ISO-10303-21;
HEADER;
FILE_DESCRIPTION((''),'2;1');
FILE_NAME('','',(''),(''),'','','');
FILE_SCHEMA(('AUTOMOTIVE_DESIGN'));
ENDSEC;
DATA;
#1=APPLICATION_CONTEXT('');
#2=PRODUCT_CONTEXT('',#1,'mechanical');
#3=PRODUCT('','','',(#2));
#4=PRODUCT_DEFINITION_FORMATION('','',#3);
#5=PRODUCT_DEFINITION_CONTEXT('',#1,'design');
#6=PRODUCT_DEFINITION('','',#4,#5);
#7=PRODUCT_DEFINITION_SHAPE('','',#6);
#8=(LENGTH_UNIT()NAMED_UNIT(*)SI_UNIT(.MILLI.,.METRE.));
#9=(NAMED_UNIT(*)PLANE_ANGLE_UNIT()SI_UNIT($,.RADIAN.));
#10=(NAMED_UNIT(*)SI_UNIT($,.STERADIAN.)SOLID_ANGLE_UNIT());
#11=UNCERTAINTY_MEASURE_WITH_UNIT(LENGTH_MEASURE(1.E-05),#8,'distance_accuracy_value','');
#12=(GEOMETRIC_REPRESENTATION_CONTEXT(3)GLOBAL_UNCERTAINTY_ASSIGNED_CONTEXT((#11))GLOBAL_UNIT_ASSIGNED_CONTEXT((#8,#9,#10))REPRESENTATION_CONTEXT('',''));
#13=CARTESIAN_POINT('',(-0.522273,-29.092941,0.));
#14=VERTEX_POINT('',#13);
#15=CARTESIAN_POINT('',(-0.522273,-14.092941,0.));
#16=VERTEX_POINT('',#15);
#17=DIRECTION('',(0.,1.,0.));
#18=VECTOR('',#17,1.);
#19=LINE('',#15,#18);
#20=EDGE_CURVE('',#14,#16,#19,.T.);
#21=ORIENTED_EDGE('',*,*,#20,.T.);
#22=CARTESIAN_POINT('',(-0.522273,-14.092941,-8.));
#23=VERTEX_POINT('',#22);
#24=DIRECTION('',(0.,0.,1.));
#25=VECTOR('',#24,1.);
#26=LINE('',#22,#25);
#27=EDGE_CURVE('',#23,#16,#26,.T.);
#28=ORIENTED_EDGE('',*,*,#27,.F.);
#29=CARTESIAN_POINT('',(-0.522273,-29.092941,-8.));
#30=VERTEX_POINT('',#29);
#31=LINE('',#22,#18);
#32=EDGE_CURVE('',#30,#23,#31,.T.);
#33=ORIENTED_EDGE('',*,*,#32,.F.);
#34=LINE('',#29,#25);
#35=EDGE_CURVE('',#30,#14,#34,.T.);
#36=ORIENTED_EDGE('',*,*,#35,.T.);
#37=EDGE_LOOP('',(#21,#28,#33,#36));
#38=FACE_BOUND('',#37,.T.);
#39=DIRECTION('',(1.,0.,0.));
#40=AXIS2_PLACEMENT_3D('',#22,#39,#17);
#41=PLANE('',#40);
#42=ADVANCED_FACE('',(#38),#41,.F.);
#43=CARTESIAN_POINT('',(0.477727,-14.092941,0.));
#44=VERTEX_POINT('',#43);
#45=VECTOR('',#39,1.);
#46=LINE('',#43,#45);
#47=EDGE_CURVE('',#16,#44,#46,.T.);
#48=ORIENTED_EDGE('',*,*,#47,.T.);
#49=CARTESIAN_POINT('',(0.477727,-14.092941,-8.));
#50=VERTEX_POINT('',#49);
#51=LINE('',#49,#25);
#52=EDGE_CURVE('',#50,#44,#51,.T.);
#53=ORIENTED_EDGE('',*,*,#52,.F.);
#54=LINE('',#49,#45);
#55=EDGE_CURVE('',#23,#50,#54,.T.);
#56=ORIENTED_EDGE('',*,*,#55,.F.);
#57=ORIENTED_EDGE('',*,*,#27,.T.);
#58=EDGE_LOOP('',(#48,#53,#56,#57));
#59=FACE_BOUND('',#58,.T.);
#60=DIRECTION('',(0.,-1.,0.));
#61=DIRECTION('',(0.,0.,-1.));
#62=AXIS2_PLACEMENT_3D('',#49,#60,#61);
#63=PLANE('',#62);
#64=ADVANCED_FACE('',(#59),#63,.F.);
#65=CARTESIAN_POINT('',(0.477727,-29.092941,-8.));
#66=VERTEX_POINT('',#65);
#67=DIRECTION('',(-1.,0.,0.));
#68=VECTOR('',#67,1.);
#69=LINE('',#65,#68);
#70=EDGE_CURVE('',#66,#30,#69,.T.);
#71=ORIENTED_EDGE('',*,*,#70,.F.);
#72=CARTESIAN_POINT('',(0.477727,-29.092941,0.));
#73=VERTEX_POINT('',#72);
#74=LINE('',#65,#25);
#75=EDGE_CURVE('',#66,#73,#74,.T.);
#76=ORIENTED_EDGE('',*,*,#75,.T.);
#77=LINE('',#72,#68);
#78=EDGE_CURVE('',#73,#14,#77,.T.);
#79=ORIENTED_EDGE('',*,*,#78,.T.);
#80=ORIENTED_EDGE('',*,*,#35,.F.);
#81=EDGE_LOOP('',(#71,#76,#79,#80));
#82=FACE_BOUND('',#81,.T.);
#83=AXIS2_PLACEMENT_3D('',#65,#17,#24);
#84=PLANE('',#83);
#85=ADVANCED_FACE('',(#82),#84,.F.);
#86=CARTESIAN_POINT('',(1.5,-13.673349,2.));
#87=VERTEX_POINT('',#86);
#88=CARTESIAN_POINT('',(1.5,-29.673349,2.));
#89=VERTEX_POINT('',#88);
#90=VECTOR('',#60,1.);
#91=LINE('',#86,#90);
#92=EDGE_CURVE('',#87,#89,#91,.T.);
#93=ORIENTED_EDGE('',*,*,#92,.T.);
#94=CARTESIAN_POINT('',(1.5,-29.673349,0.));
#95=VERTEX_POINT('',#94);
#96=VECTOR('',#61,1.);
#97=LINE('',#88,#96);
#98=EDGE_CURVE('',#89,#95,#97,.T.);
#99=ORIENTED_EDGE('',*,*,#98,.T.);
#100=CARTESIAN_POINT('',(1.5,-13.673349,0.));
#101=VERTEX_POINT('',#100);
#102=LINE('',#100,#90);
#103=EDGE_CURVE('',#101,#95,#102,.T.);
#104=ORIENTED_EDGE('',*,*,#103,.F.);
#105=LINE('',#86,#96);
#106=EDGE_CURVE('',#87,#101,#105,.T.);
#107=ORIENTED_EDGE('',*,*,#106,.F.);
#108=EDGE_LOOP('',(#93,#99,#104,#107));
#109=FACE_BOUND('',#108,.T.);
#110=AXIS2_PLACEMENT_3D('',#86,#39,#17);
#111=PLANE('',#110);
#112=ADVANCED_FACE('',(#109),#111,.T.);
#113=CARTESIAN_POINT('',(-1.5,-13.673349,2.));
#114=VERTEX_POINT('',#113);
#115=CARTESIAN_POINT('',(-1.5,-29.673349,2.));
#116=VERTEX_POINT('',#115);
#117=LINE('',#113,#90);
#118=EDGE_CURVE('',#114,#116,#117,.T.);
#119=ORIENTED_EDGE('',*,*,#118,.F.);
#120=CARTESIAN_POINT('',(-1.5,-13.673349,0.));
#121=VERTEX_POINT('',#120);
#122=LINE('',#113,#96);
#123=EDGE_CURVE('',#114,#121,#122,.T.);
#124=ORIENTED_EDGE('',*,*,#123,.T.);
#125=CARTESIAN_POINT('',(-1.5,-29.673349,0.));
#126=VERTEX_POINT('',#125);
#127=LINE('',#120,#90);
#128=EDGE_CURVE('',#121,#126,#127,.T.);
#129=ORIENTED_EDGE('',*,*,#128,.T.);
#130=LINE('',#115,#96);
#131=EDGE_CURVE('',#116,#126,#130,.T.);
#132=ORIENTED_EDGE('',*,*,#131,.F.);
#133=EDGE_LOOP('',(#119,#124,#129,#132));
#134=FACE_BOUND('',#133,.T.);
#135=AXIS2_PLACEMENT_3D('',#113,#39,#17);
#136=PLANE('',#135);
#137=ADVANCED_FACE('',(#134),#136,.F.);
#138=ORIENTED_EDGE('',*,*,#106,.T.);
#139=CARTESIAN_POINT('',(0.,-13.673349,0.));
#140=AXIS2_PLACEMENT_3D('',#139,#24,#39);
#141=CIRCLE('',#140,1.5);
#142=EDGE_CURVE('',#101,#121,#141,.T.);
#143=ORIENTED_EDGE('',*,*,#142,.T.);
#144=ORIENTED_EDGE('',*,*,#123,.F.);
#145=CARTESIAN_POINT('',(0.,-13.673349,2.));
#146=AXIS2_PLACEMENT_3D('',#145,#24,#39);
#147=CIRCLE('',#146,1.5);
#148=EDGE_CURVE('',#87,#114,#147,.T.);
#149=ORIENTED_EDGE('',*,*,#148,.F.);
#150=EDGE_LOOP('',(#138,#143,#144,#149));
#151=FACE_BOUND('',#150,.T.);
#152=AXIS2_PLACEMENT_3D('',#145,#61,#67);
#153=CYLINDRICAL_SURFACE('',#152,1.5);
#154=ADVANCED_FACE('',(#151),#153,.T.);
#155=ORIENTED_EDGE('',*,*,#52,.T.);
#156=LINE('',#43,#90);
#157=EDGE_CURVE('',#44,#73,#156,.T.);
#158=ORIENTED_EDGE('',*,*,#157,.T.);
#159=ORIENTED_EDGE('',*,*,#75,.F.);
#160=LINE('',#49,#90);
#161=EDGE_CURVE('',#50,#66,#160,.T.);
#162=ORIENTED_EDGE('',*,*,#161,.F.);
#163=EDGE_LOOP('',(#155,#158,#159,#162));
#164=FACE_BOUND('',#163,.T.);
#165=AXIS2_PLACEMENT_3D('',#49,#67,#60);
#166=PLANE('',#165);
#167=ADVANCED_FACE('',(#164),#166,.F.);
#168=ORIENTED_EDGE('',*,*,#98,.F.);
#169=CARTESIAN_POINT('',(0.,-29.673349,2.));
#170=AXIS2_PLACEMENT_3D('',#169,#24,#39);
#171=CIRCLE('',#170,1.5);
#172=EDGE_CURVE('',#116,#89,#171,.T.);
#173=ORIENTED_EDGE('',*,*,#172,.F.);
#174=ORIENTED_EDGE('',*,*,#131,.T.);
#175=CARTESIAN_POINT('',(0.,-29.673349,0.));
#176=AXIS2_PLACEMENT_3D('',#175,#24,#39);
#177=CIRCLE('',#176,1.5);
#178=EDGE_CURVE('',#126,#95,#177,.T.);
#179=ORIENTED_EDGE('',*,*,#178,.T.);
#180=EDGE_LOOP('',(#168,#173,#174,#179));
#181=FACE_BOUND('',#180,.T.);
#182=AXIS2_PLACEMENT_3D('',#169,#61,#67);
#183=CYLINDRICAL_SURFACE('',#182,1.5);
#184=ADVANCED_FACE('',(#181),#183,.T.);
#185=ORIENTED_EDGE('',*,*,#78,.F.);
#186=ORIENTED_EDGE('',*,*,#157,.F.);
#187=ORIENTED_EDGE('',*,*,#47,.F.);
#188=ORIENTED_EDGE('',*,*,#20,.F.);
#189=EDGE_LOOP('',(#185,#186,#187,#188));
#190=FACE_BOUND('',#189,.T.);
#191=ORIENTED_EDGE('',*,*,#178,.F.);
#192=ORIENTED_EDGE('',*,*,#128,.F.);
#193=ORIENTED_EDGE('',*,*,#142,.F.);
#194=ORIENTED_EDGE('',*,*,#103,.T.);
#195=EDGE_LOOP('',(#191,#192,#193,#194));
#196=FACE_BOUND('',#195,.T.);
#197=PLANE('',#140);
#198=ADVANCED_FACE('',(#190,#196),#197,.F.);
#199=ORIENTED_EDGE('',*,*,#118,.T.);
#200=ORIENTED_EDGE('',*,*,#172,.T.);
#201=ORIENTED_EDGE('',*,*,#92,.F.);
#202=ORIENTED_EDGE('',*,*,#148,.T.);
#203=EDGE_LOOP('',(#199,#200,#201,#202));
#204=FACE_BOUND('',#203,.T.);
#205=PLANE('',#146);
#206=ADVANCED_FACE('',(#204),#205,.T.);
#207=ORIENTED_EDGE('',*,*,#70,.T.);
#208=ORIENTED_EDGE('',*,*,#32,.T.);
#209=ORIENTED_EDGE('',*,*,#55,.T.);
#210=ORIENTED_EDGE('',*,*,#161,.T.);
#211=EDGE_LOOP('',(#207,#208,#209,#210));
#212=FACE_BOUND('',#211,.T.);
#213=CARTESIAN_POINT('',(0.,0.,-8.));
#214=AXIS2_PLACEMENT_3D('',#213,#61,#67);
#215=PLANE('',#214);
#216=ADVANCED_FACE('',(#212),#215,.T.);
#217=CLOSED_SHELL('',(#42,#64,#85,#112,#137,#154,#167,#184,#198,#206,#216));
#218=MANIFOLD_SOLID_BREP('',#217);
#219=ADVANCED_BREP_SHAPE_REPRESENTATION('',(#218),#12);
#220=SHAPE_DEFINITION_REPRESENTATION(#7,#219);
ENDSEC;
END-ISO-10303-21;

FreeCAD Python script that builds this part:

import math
import FreeCAD as App
import Part
import Sketcher

V = App.Vector
Q = App.Units.Quantity

doc = App.newDocument("Part")
params = doc.addObject("Spreadsheet::Sheet", "Params")
for row, (alias, value) in enumerate([
    ("sketch1_radius", "1.5 mm"),
    ("sketch1_height", "16 mm"),
    ("pad1_length", "2 mm"),
    ("sketch2_width", "1 mm"),
    ("sketch2_height", "15 mm"),
    ("pad2_length", "8 mm"),
], start=1):
    params.set(f"A{row}", alias)
    params.set(f"B{row}", "=" + value)
    params.setAlias(f"B{row}", alias)

body = doc.addObject("PartDesign::Body", "Body")

sketch1 = doc.addObject("Sketcher::SketchObject", "Sketch")
body.addObject(sketch1)
sketch1.AttachmentSupport = (doc.XY_Plane, [""])
sketch1.MapMode = "FlatFace"
sketch1.addGeometry([
    Part.LineSegment(V(1.5, -29.7, 0), V(1.5, -13.7, 0)),
    Part.ArcOfCircle(Part.Circle(V(0, -13.7, 0), V(0, 0, 1), 1.5), math.radians(0), math.radians(180)),
    Part.LineSegment(V(-1.5, -13.7, 0), V(-1.5, -29.7, 0)),
    Part.ArcOfCircle(Part.Circle(V(0, -29.7, 0), V(0, 0, 1), 1.5), math.radians(180), math.radians(360)),
], False)
sketch1.addConstraint([
    Sketcher.Constraint("Tangent", 0, 2, 1, 1),
    Sketcher.Constraint("Tangent", 1, 2, 2, 1),
    Sketcher.Constraint("Tangent", 2, 2, 3, 1),
    Sketcher.Constraint("Tangent", 3, 2, 0, 1),
    Sketcher.Constraint("Vertical", 0),
    Sketcher.Constraint("Vertical", 2),
    Sketcher.Constraint("PointOnObject", 1, 3, -2),
    Sketcher.Constraint("Radius", 1, Q("1.5 mm")),
    Sketcher.Constraint("DistanceY", 0, 1, 0, 2, Q("16 mm")),
    Sketcher.Constraint("DistanceY", 1, 3, -1, 1, Q("13.673349 mm")),
])
sketch1.setExpression("Constraints[7]", "Params.sketch1_radius")
sketch1.setExpression("Constraints[8]", "Params.sketch1_height")
pad1 = doc.addObject("PartDesign::Pad", "Pad")
body.addObject(pad1)
pad1.Profile = sketch1
pad1.setExpression("Length", "Params.pad1_length")

sketch2 = doc.addObject("Sketcher::SketchObject", "Sketch001")
body.addObject(sketch2)
sketch2.AttachmentSupport = (doc.XY_Plane, [""])
sketch2.MapMode = "FlatFace"
sketch2.addGeometry([
    Part.LineSegment(V(0.5, -14.1, 0), V(0.5, -29.1, 0)),
    Part.LineSegment(V(0.5, -29.1, 0), V(-0.5, -29.1, 0)),
    Part.LineSegment(V(-0.5, -29.1, 0), V(-0.5, -14.1, 0)),
    Part.LineSegment(V(-0.5, -14.1, 0), V(0.5, -14.1, 0)),
], False)
sketch2.addConstraint([
    Sketcher.Constraint("Coincident", 0, 2, 1, 1),
    Sketcher.Constraint("Coincident", 1, 2, 2, 1),
    Sketcher.Constraint("Coincident", 2, 2, 3, 1),
    Sketcher.Constraint("Coincident", 3, 2, 0, 1),
    Sketcher.Constraint("Vertical", 0),
    Sketcher.Constraint("Horizontal", 1),
    Sketcher.Constraint("Vertical", 2),
    Sketcher.Constraint("Horizontal", 3),
    Sketcher.Constraint("DistanceX", 1, 2, 1, 1, Q("1 mm")),
    Sketcher.Constraint("DistanceY", 0, 2, 0, 1, Q("15 mm")),
    Sketcher.Constraint("DistanceY", 0, 2, -1, 1, Q("29.092941 mm")),
    Sketcher.Constraint("DistanceX", -1, 1, 0, 2, Q("0.477727 mm")),
])
sketch2.setExpression("Constraints[8]", "Params.sketch2_width")
sketch2.setExpression("Constraints[9]", "Params.sketch2_height")
pad2 = doc.addObject("PartDesign::Pad", "Pad001")
body.addObject(pad2)
pad2.Profile = sketch2
pad2.setExpression("Length", "Params.pad2_length")
pad2.Reversed = True

doc.recompute()
